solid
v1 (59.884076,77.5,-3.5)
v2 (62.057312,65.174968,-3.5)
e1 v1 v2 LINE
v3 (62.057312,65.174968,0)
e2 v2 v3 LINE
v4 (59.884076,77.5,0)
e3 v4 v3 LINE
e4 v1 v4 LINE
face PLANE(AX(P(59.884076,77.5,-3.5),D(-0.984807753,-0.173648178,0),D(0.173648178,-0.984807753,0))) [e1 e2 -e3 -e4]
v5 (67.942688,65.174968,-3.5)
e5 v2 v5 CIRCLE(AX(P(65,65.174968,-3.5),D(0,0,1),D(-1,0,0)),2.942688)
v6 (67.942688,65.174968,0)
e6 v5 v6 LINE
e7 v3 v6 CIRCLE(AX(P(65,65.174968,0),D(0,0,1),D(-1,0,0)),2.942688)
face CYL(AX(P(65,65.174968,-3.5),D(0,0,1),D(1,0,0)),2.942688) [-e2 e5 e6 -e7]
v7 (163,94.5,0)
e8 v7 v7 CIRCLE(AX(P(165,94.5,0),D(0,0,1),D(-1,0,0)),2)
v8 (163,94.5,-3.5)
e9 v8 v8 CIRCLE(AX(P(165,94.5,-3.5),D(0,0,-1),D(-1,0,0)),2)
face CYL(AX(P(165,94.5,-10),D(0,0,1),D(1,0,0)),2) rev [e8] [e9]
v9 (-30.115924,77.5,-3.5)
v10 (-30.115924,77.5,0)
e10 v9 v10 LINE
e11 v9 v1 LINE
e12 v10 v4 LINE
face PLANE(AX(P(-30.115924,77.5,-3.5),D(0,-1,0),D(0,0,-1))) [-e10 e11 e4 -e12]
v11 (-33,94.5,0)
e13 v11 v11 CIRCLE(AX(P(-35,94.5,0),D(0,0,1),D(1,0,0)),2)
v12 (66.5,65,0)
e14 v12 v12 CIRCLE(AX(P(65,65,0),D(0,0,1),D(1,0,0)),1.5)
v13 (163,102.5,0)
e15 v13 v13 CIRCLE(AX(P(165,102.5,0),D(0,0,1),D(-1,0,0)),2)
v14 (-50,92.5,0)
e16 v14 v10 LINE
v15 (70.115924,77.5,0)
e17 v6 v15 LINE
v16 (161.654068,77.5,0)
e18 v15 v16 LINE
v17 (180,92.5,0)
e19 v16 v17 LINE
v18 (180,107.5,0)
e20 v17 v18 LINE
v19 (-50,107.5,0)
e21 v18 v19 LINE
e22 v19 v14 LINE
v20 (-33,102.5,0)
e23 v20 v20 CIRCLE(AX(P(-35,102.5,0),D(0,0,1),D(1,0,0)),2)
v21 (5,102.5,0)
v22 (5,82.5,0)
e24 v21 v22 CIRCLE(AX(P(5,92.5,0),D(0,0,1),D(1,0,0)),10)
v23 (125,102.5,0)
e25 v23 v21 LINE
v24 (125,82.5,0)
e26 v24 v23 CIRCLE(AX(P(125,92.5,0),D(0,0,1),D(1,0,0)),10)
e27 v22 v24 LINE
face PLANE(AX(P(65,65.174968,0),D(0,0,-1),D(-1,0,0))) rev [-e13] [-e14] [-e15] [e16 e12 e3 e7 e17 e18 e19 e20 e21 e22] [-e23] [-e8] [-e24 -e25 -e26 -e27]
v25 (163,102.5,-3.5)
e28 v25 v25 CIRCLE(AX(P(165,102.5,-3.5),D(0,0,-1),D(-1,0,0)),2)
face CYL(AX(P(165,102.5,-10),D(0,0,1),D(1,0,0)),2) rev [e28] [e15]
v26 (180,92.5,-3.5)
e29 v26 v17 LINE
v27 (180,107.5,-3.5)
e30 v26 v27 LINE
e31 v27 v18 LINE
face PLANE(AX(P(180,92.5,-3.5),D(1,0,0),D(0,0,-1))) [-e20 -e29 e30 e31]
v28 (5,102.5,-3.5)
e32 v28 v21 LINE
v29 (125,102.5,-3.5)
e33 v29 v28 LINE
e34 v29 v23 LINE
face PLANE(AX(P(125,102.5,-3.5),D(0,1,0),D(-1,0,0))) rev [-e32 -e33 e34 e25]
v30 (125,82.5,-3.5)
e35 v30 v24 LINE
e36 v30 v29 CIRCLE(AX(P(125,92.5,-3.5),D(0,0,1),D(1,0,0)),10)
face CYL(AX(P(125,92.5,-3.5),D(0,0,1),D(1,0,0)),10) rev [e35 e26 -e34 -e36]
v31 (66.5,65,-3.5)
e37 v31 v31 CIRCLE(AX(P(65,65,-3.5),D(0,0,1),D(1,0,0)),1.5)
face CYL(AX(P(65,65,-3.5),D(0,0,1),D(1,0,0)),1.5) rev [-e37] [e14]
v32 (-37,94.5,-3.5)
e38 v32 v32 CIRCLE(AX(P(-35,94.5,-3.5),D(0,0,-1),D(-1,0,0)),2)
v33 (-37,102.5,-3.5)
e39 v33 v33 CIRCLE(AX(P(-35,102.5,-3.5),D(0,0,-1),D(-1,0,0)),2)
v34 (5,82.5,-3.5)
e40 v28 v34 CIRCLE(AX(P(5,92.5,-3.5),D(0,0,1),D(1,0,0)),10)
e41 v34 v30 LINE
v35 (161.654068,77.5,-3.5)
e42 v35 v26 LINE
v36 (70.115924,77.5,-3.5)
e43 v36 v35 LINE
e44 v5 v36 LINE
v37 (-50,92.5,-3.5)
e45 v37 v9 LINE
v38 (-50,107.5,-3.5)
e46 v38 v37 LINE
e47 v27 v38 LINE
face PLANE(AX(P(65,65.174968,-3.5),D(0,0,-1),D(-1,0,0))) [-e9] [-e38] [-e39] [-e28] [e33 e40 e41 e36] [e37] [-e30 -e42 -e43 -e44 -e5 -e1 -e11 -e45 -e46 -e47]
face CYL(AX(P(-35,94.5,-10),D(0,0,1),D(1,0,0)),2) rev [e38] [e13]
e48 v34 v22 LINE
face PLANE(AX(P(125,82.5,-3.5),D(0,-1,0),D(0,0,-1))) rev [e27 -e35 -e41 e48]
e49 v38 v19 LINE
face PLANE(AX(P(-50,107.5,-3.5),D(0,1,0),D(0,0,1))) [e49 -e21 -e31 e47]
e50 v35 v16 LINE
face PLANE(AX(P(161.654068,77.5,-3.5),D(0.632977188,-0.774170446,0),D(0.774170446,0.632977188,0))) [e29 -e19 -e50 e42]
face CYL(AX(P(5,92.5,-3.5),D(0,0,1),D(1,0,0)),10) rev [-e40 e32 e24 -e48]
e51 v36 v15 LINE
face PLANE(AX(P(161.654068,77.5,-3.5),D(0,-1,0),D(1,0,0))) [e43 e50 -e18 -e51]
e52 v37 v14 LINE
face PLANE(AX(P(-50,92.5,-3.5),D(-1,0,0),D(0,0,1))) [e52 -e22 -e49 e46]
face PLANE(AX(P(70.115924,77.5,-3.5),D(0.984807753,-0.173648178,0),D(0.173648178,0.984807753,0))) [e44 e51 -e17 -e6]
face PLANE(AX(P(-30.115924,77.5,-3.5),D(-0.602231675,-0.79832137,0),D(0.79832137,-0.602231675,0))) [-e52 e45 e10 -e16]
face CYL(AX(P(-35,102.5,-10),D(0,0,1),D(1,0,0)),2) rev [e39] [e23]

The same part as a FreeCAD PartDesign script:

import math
import FreeCAD as App
import Part
import Sketcher
Q = App.Units.Quantity

doc = App.newDocument("Part")
body = doc.addObject("PartDesign::Body", "Body")

# Sketch on XY plane
sketch1 = doc.addObject("Sketcher::SketchObject", "Sketch")
body.addObject(sketch1)
sketch1.AttachmentSupport = (doc.XY_Plane, [""])
sketch1.MapMode = "FlatFace"
sketch1.addGeometry([
    Part.LineSegment(App.Vector(59.884076, 77.5, 0), App.Vector(62.057312, 65.174968, 0)),  # 0
    Part.ArcOfCircle(Part.Circle(App.Vector(65, 65.174968, 0), App.Vector(0, 0, 1), 2.942688), math.radians(180), math.radians(360)),  # 1
    Part.LineSegment(App.Vector(67.942688, 65.174968, 0), App.Vector(70.115924, 77.5, 0)),  # 2
    Part.LineSegment(App.Vector(70.115924, 77.5, 0), App.Vector(161.654068, 77.5, 0)),  # 3
    Part.LineSegment(App.Vector(161.654068, 77.5, 0), App.Vector(180, 92.5, 0)),  # 4
    Part.LineSegment(App.Vector(180, 92.5, 0), App.Vector(180, 107.5, 0)),  # 5
    Part.LineSegment(App.Vector(180, 107.5, 0), App.Vector(-50, 107.5, 0)),  # 6
    Part.LineSegment(App.Vector(-50, 107.5, 0), App.Vector(-50, 92.5, 0)),  # 7
    Part.LineSegment(App.Vector(-50, 92.5, 0), App.Vector(-30.115924, 77.5, 0)),  # 8
    Part.LineSegment(App.Vector(-30.115924, 77.5, 0), App.Vector(59.884076, 77.5, 0)),  # 9
    Part.Circle(App.Vector(65, 65, 0), App.Vector(0, 0, 1), 1.5),  # 10
    Part.ArcOfCircle(Part.Circle(App.Vector(125, 92.5, 0), App.Vector(0, 0, 1), 10), math.radians(-90), math.radians(90)),  # 11
    Part.LineSegment(App.Vector(125, 82.5, 0), App.Vector(5, 82.5, 0)),  # 12
    Part.ArcOfCircle(Part.Circle(App.Vector(5, 92.5, 0), App.Vector(0, 0, 1), 10), math.radians(90), math.radians(270)),  # 13
    Part.LineSegment(App.Vector(5, 102.5, 0), App.Vector(125, 102.5, 0)),  # 14
], False)
sketch1.addConstraint([
    Sketcher.Constraint("Coincident", 0, 2, 1, 1),
    Sketcher.Constraint("Coincident", 1, 2, 2, 1),
    Sketcher.Constraint("Coincident", 2, 2, 3, 1),
    Sketcher.Constraint("Coincident", 3, 2, 4, 1),
    Sketcher.Constraint("Coincident", 4, 2, 5, 1),
    Sketcher.Constraint("Coincident", 5, 2, 6, 1),
    Sketcher.Constraint("Coincident", 6, 2, 7, 1),
    Sketcher.Constraint("Coincident", 7, 2, 8, 1),
    Sketcher.Constraint("Coincident", 8, 2, 9, 1),
    Sketcher.Constraint("Coincident", 9, 2, 0, 1),
    Sketcher.Constraint("Tangent", 11, 1, 12, 1),
    Sketcher.Constraint("Tangent", 12, 2, 13, 2),
    Sketcher.Constraint("Tangent", 13, 1, 14, 1),
    Sketcher.Constraint("Tangent", 14, 2, 11, 2),
    Sketcher.Constraint("Horizontal", 3),
    Sketcher.Constraint("Vertical", 5),
    Sketcher.Constraint("Horizontal", 6),
    Sketcher.Constraint("Vertical", 7),
    Sketcher.Constraint("Horizontal", 9),
    Sketcher.Constraint("Horizontal", 12),
    Sketcher.Constraint("Horizontal", 14),
    Sketcher.Constraint("Horizontal", 1, 3, 0, 2),
    Sketcher.Constraint("Horizontal", 0, 2, 1, 2),
    Sketcher.Constraint("Horizontal", 13, 3, 4, 2),
    Sketcher.Constraint("Horizontal", 4, 2, 7, 2),
    Sketcher.Constraint("Horizontal", 3, 2, 8, 2),
    Sketcher.Constraint("Vertical", 1, 3, 10, 3),
    Sketcher.Constraint("Equal", 0, 2),
    Sketcher.Constraint("Diameter", 10, Q("3 mm")),
    Sketcher.Constraint("Radius", 11, Q("10 mm")),
    Sketcher.Constraint("DistanceX", 6, 2, 6, 1, Q("230 mm")),
    Sketcher.Constraint("DistanceX", 9, 1, 9, 2, Q("90 mm")),
    Sketcher.Constraint("DistanceX", 12, 2, 12, 1, Q("120 mm")),
    Sketcher.Constraint("DistanceY", 5, 1, 5, 2, Q("15 mm")),
    Sketcher.Constraint("Angle", 0, Q("-80 deg")),
    Sketcher.Constraint("DistanceX", -1, 1, 1, 3, Q("65 mm")),
    Sketcher.Constraint("DistanceY", -1, 1, 10, 3, Q("65 mm")),
    Sketcher.Constraint("DistanceX", -1, 1, 11, 3, Q("125 mm")),
    Sketcher.Constraint("DistanceX", -1, 1, 4, 2, Q("180 mm")),
    Sketcher.Constraint("DistanceY", 2, 2, 11, 3, Q("15 mm")),
    Sketcher.Constraint("DistanceY", -1, 1, 11, 3, Q("92.5 mm")),
    Sketcher.Constraint("Radius", 1, Q("2.942688 mm")),
    Sketcher.Constraint("Distance", 8, Q("24.907358 mm")),
    Sketcher.Constraint("DistanceX", 3, 1, 3, 2, Q("91.538144 mm")),
])
pad1 = doc.addObject("PartDesign::Pad", "Pad")
body.addObject(pad1)
pad1.Profile = sketch1
pad1.Length = 3.5
pad1.Reversed = True

# Sketch on XY plane
sketch2 = doc.addObject("Sketcher::SketchObject", "Sketch001")
body.addObject(sketch2)
sketch2.AttachmentSupport = (doc.XY_Plane, [""])
sketch2.MapMode = "FlatFace"
sketch2.addGeometry([
    Part.Circle(App.Vector(-35, 102.5, 0), App.Vector(0, 0, 1), 2),
    Part.Circle(App.Vector(-35, 94.5, 0), App.Vector(0, 0, 1), 2),
    Part.Circle(App.Vector(165, 94.5, 0), App.Vector(0, 0, 1), 2),
    Part.Circle(App.Vector(165, 102.5, 0), App.Vector(0, 0, 1), 2),
], False)
sketch2.addConstraint([
    Sketcher.Constraint("Equal", 0, 1),
    Sketcher.Constraint("Equal", 1, 2),
    Sketcher.Constraint("Equal", 2, 3),
    Sketcher.Constraint("Horizontal", 1, 3, 2, 3),
    Sketcher.Constraint("Horizontal", 0, 3, 3, 3),
    Sketcher.Constraint("Vertical", 0, 3, 1, 3),
    Sketcher.Constraint("Vertical", 2, 3, 3, 3),
    Sketcher.Constraint("Diameter", 0, Q("4 mm")),
    Sketcher.Constraint("DistanceX", 0, 3, -1, 1, Q("35 mm")),
    Sketcher.Constraint("DistanceX", -1, 1, 2, 3, Q("165 mm")),
    Sketcher.Constraint("DistanceY", 1, 3, 0, 3, Q("8 mm")),
    Sketcher.Constraint("DistanceY", -1, 1, 0, 3, Q("102.5 mm")),
])
pocket1 = doc.addObject("PartDesign::Pocket", "Pocket")
body.addObject(pocket1)
pocket1.Profile = sketch2
pocket1.Length = 10

doc.recompute()
